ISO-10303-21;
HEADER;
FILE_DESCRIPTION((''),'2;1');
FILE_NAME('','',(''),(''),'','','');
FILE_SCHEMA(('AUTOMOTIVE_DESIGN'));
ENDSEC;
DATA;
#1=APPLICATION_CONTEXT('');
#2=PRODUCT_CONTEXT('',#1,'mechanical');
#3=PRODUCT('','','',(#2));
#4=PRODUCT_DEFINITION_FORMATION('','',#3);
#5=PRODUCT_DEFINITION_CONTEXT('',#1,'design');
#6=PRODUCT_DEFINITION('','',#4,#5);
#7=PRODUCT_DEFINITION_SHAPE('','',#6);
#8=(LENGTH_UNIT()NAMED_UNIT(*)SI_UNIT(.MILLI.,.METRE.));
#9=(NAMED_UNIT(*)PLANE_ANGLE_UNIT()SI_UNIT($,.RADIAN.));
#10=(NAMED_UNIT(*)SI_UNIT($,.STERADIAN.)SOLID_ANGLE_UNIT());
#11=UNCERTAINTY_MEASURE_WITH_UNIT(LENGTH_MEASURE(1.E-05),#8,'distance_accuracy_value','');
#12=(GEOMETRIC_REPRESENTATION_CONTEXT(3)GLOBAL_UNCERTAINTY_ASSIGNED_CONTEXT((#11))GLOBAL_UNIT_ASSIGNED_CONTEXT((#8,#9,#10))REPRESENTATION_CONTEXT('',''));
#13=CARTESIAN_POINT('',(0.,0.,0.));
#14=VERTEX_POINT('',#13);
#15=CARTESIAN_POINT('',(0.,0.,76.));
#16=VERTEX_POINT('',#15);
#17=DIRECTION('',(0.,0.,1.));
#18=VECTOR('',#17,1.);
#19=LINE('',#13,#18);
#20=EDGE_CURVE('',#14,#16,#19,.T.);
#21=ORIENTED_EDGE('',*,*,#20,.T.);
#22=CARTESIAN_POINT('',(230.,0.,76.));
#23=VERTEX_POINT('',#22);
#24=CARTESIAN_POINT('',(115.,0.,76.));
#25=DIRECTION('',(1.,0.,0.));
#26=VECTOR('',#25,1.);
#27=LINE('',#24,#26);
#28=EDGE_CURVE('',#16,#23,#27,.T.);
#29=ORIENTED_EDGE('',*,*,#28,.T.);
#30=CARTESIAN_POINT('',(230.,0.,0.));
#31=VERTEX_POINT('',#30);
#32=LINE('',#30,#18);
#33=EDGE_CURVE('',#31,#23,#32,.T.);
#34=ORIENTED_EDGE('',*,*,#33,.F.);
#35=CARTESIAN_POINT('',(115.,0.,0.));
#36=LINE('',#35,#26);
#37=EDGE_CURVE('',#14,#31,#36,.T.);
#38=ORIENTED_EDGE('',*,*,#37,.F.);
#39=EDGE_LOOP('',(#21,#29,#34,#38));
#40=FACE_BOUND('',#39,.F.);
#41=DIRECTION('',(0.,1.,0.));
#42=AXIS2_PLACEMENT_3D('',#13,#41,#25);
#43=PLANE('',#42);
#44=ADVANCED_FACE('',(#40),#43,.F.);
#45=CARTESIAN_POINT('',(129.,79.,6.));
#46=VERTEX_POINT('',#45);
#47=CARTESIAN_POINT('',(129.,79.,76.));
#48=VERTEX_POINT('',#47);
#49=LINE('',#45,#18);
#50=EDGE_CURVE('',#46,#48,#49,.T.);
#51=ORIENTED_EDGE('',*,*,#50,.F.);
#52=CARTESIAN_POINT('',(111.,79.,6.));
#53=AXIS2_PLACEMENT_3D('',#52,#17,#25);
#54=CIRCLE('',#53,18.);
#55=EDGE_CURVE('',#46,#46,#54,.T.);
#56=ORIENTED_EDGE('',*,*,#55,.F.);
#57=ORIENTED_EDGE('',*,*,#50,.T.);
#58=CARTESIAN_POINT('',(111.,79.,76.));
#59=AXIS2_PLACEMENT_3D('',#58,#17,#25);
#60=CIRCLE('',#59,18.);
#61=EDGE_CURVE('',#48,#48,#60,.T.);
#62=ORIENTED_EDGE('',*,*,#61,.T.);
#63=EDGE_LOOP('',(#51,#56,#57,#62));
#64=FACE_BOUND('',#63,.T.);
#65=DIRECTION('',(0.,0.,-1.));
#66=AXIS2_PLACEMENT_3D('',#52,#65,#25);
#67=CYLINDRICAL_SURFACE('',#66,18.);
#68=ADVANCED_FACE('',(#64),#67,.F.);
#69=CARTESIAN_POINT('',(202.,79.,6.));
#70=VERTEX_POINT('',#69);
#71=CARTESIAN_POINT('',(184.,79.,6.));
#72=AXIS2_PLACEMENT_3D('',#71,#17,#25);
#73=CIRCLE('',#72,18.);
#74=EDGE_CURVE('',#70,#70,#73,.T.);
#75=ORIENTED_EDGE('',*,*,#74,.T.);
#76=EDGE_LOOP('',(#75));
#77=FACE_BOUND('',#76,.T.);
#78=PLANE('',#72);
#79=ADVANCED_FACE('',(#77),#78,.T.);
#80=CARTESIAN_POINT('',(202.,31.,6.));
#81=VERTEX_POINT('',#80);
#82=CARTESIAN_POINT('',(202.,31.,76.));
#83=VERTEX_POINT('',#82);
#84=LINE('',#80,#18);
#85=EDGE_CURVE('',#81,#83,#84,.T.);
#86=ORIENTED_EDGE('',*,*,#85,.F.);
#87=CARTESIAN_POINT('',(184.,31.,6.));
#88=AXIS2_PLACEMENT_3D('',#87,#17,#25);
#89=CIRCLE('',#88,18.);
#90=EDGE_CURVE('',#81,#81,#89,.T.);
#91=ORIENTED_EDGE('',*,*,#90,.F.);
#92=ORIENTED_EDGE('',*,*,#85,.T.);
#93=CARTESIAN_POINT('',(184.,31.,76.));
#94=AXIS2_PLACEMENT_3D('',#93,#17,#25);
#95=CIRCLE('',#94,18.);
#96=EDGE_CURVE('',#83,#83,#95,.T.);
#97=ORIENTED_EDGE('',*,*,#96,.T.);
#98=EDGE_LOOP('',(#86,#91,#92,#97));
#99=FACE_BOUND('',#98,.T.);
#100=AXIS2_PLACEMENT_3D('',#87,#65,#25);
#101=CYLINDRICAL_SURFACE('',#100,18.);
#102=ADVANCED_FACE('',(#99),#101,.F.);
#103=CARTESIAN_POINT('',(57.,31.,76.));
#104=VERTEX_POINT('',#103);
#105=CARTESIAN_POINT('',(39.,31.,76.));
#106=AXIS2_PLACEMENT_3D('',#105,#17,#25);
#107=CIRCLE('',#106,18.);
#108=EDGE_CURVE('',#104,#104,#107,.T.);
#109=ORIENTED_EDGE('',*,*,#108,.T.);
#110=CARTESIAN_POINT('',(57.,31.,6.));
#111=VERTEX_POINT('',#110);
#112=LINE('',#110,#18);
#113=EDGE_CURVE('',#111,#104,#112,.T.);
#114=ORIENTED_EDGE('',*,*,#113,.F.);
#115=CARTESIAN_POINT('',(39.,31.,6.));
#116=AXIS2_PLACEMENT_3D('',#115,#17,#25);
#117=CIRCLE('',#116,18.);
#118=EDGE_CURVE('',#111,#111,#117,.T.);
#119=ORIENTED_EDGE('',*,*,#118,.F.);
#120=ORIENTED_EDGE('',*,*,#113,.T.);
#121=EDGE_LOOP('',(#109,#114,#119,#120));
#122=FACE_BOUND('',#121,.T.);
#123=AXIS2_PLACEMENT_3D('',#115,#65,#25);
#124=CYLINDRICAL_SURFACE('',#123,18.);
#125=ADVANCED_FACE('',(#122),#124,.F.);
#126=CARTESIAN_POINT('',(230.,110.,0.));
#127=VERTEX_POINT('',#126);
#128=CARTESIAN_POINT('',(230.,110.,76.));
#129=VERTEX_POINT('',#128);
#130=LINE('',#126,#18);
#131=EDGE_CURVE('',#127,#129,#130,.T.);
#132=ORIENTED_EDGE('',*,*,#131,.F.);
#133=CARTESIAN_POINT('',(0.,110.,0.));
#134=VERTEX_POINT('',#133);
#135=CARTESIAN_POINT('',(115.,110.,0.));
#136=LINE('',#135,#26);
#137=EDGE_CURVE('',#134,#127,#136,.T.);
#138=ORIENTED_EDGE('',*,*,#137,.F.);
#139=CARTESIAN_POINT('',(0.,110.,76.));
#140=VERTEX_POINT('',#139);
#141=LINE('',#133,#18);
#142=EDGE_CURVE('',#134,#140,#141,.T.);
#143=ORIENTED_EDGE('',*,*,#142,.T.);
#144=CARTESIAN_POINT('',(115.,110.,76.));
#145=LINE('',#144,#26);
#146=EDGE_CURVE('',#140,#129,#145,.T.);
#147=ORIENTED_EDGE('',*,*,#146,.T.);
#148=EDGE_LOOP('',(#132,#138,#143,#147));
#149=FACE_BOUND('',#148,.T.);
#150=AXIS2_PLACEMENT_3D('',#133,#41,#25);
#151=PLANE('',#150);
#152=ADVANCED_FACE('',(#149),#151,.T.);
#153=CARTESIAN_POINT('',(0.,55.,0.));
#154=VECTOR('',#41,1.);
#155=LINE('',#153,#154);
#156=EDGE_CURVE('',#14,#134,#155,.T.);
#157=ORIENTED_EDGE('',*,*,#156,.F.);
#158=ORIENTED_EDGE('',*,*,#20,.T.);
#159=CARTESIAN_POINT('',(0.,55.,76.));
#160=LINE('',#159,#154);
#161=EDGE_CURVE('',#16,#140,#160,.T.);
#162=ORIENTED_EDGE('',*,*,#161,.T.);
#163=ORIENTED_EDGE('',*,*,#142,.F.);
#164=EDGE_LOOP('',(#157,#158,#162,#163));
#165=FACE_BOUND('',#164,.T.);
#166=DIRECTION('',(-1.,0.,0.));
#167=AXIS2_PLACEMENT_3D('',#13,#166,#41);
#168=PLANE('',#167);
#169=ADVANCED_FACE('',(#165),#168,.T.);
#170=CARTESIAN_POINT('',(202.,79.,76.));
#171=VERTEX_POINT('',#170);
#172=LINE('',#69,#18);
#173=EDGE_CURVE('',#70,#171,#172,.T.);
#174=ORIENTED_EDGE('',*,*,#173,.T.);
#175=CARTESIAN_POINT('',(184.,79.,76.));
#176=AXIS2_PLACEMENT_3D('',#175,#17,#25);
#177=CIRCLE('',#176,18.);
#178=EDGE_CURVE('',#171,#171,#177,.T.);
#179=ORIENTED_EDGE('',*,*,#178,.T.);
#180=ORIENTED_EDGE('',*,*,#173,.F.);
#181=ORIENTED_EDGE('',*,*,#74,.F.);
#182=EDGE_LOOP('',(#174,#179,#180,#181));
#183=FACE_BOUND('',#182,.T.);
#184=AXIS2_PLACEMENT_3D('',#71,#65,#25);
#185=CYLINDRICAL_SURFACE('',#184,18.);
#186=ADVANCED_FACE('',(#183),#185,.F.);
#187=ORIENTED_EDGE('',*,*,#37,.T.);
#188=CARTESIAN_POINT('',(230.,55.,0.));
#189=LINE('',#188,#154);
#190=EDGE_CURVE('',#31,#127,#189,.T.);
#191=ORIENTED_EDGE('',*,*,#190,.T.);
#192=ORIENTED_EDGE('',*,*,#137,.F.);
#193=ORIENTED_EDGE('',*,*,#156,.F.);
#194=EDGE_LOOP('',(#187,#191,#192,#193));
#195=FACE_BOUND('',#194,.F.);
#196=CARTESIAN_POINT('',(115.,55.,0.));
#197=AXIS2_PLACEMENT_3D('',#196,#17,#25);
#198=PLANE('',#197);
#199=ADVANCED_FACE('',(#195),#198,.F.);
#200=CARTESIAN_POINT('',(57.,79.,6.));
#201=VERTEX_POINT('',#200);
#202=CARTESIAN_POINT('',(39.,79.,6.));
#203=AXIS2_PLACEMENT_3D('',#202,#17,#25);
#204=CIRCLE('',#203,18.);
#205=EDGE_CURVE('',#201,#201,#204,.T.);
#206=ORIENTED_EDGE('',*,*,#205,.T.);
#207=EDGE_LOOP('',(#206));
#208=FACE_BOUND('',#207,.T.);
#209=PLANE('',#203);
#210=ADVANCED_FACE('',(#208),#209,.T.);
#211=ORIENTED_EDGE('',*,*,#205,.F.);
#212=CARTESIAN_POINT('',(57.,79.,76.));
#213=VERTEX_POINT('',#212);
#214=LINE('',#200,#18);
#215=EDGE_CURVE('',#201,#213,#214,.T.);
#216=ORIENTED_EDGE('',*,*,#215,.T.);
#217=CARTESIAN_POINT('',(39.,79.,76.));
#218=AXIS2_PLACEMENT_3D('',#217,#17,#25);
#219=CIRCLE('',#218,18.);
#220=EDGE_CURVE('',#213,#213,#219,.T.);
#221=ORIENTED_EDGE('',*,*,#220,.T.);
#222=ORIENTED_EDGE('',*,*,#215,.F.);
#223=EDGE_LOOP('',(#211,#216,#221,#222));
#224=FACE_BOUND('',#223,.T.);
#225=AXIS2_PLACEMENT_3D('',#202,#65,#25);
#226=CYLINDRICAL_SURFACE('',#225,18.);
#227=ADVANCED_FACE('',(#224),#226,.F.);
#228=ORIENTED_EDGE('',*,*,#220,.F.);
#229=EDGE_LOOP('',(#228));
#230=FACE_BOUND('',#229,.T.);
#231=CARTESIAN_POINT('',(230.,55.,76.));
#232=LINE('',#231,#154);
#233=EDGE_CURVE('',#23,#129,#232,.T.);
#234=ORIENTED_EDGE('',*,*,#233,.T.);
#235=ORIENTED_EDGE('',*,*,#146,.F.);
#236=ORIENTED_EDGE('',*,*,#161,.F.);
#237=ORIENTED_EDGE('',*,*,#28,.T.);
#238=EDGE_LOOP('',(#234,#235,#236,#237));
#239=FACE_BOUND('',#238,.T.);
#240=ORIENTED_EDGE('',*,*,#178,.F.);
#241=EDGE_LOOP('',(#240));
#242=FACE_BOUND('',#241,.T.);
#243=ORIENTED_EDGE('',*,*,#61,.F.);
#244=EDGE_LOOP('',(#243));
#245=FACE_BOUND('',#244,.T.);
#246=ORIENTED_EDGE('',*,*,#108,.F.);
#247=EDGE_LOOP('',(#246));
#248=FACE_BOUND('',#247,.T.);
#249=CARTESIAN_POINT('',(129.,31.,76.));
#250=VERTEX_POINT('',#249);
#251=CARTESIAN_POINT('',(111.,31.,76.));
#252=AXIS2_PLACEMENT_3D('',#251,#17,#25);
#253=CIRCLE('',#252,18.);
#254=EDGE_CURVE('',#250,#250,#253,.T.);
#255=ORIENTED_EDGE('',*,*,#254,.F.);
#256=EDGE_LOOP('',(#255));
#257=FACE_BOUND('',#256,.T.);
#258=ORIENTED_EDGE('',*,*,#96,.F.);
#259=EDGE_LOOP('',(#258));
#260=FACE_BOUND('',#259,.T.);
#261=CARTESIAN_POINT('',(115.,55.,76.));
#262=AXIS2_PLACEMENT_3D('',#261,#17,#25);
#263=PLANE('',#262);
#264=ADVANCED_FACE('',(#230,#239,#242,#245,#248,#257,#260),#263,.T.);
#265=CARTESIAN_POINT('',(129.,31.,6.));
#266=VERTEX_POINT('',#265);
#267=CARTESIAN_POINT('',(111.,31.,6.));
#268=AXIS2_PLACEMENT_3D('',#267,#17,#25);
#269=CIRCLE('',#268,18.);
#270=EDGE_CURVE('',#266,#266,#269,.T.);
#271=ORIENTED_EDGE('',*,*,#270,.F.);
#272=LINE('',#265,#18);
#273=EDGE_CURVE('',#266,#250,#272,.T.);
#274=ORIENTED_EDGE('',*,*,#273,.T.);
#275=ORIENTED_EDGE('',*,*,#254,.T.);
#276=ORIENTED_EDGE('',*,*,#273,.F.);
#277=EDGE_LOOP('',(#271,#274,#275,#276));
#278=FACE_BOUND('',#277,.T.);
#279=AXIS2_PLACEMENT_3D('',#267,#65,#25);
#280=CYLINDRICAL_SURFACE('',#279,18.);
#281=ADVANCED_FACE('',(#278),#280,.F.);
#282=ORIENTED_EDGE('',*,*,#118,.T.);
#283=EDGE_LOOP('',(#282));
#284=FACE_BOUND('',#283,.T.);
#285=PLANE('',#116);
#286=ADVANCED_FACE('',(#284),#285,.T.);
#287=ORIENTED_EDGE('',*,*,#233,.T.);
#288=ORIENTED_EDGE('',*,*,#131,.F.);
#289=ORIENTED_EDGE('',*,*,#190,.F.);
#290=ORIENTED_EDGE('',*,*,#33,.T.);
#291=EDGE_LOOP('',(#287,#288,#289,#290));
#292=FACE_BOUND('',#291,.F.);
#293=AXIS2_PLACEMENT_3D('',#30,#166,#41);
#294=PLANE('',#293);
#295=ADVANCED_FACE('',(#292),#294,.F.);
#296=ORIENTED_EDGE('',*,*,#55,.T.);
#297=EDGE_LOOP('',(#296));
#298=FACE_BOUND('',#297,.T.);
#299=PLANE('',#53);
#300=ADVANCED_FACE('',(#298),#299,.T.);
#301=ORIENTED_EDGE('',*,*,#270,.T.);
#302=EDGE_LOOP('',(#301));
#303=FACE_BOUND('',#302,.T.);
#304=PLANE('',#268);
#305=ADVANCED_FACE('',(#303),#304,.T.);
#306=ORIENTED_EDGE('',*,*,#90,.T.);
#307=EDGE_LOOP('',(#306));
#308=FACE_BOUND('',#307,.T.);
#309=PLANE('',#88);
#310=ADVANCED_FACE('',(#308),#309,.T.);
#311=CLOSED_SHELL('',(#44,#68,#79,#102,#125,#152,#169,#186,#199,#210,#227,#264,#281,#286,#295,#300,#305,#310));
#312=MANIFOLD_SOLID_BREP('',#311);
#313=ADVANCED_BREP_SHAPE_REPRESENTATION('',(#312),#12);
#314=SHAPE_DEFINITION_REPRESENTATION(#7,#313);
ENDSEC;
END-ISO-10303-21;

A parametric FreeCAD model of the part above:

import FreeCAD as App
import Part
import Sketcher

doc = App.newDocument("Part")
body = doc.addObject("PartDesign::Body", "Body")

sketch1 = body.newObject("Sketcher::SketchObject", "Sketch")
sketch1.AttachmentSupport = (doc.getObject("XY_Plane"), [""])
sketch1.MapMode = "FlatFace"
sketch1.AttachmentOffset = App.Placement(App.Vector(0, 0, 6), App.Rotation())
sketch1.addGeometry(Part.Circle(App.Vector(39, 79, 0), App.Vector(0, 0, 1), 18), False)
sketch1.addConstraint([
    Sketcher.Constraint("Diameter", 0, 36.0),
    Sketcher.Constraint("DistanceX", -1, 1, 0, 3, 39.0),
    Sketcher.Constraint("DistanceY", -1, 1, 0, 3, 79.0),
])
pad1 = body.newObject("PartDesign::Pad", "Pad")
pad1.Profile = sketch1
pad1.Length = 70
body2 = doc.addObject("PartDesign::Body", "Body001")
body2.AllowCompound = True

sketch2 = body2.newObject("Sketcher::SketchObject", "Sketch001")
sketch2.AttachmentSupport = (doc.getObject("XY_Plane001"), [""])
sketch2.MapMode = "FlatFace"
sketch2.AttachmentOffset = App.Placement(App.Vector(0, 0, 6), App.Rotation())
sketch2.addGeometry(Part.Circle(App.Vector(39, 31, 0), App.Vector(0, 0, 1), 18), False)
sketch2.addConstraint([
    Sketcher.Constraint("Diameter", 0, 36.0),
    Sketcher.Constraint("DistanceX", -1, 1, 0, 3, 39.0),
    Sketcher.Constraint("DistanceY", -1, 1, 0, 3, 31.0),
])
pad2 = body2.newObject("PartDesign::Pad", "Pad001")
pad2.Profile = sketch2
pad2.Length = 70
doc.recompute()

boolean = body2.newObject("PartDesign::Boolean", "Boolean")
boolean.Type = "Fuse"
boolean.addObjects([body])
body3 = doc.addObject("PartDesign::Body", "Body002")

sketch3 = body3.newObject("Sketcher::SketchObject", "Sketch002")
sketch3.AttachmentSupport = (doc.getObject("XY_Plane002"), [""])
sketch3.MapMode = "FlatFace"
sketch3.AttachmentOffset = App.Placement(App.Vector(0, 0, 6), App.Rotation())
sketch3.addGeometry(Part.Circle(App.Vector(39, 79, 0), App.Vector(0, 0, 1), 18), False)
sketch3.addConstraint([
    Sketcher.Constraint("Diameter", 0, 36.0),
    Sketcher.Constraint("DistanceX", -1, 1, 0, 3, 39.0),
    Sketcher.Constraint("DistanceY", -1, 1, 0, 3, 79.0),
])
pad3 = body3.newObject("PartDesign::Pad", "Pad002")
pad3.Profile = sketch3
pad3.Length = 70
body4 = doc.addObject("PartDesign::Body", "Body003")
body4.AllowCompound = True

sketch4 = body4.newObject("Sketcher::SketchObject", "Sketch003")
sketch4.AttachmentSupport = (doc.getObject("XY_Plane003"), [""])
sketch4.MapMode = "FlatFace"
sketch4.AttachmentOffset = App.Placement(App.Vector(0, 0, 6), App.Rotation())
sketch4.addGeometry(Part.Circle(App.Vector(39, 31, 0), App.Vector(0, 0, 1), 18), False)
sketch4.addConstraint([
    Sketcher.Constraint("Diameter", 0, 36.0),
    Sketcher.Constraint("DistanceX", -1, 1, 0, 3, 39.0),
    Sketcher.Constraint("DistanceY", -1, 1, 0, 3, 31.0),
])
pad4 = body4.newObject("PartDesign::Pad", "Pad003")
pad4.Profile = sketch4
pad4.Length = 70
doc.recompute()

boolean2 = body4.newObject("PartDesign::Boolean", "Boolean001")
boolean2.Type = "Fuse"
boolean2.addObjects([body3])
body5 = doc.addObject("PartDesign::Body", "Body004")
body5.AllowCompound = True
doc.recompute()

body4.Placement = App.Placement(App.Vector(145, 0, 0), App.Rotation(App.Vector(0, 0, 1), 0))
boolean3 = body5.newObject("PartDesign::Boolean", "Boolean002")
boolean3.Type = "Fuse"
boolean3.addObjects([body4])
body6 = doc.addObject("PartDesign::Body", "Body005")

sketch5 = body6.newObject("Sketcher::SketchObject", "Sketch004")
sketch5.AttachmentSupport = (doc.getObject("XY_Plane005"), [""])
sketch5.MapMode = "FlatFace"
sketch5.AttachmentOffset = App.Placement(App.Vector(0, 0, 6), App.Rotation())
sketch5.addGeometry(Part.Circle(App.Vector(39, 79, 0), App.Vector(0, 0, 1), 18), False)
sketch5.addConstraint([
    Sketcher.Constraint("Diameter", 0, 36.0),
    Sketcher.Constraint("DistanceX", -1, 1, 0, 3, 39.0),
    Sketcher.Constraint("DistanceY", -1, 1, 0, 3, 79.0),
])
pad5 = body6.newObject("PartDesign::Pad", "Pad004")
pad5.Profile = sketch5
pad5.Length = 70
body7 = doc.addObject("PartDesign::Body", "Body006")
body7.AllowCompound = True

sketch6 = body7.newObject("Sketcher::SketchObject", "Sketch005")
sketch6.AttachmentSupport = (doc.getObject("XY_Plane006"), [""])
sketch6.MapMode = "FlatFace"
sketch6.AttachmentOffset = App.Placement(App.Vector(0, 0, 6), App.Rotation())
sketch6.addGeometry(Part.Circle(App.Vector(39, 31, 0), App.Vector(0, 0, 1), 18), False)
sketch6.addConstraint([
    Sketcher.Constraint("Diameter", 0, 36.0),
    Sketcher.Constraint("DistanceX", -1, 1, 0, 3, 39.0),
    Sketcher.Constraint("DistanceY", -1, 1, 0, 3, 31.0),
])
pad6 = body7.newObject("PartDesign::Pad", "Pad005")
pad6.Profile = sketch6
pad6.Length = 70
doc.recompute()

boolean4 = body7.newObject("PartDesign::Boolean", "Boolean003")
boolean4.Type = "Fuse"
boolean4.addObjects([body6])
body8 = doc.addObject("PartDesign::Body", "Body007")
body8.AllowCompound = True
doc.recompute()

body7.Placement = App.Placement(App.Vector(72, 0, 0), App.Rotation(App.Vector(0, 0, 1), 0))
boolean5 = body8.newObject("PartDesign::Boolean", "Boolean004")
boolean5.Type = "Fuse"
boolean5.addObjects([body7])
doc.recompute()

boolean6 = body8.newObject("PartDesign::Boolean", "Boolean005")
boolean6.Type = "Fuse"
boolean6.addObjects([body2])
doc.recompute()

boolean7 = body8.newObject("PartDesign::Boolean", "Boolean006")
boolean7.Type = "Fuse"
boolean7.addObjects([body5])
body9 = doc.addObject("PartDesign::Body", "Body008")

sketch7 = body9.newObject("Sketcher::SketchObject", "Sketch006")
sketch7.AttachmentSupport = (doc.getObject("XY_Plane008"), [""])
sketch7.MapMode = "FlatFace"
sketch7.addGeometry([
    Part.LineSegment(App.Vector(0, 110, 0), App.Vector(0, 0, 0)),
    Part.LineSegment(App.Vector(0, 0, 0), App.Vector(230, 0, 0)),
    Part.LineSegment(App.Vector(230, 0, 0), App.Vector(230, 110, 0)),
    Part.LineSegment(App.Vector(230, 110, 0), App.Vector(0, 110, 0)),
], False)
sketch7.addConstraint([
    Sketcher.Constraint("Coincident", 0, 2, 1, 1),
    Sketcher.Constraint("Coincident", 1, 2, 2, 1),
    Sketcher.Constraint("Coincident", 2, 2, 3, 1),
    Sketcher.Constraint("Coincident", 3, 2, 0, 1),
    Sketcher.Constraint("Vertical", 0),
    Sketcher.Constraint("Horizontal", 1),
    Sketcher.Constraint("Vertical", 2),
    Sketcher.Constraint("Horizontal", 3),
    Sketcher.Constraint("Coincident", 0, 2, -1, 1),
    Sketcher.Constraint("DistanceX", 1, 1, 1, 2, 230.0),
    Sketcher.Constraint("DistanceY", 0, 2, 0, 1, 110.0),
])
pad7 = body9.newObject("PartDesign::Pad", "Pad006")
pad7.Profile = sketch7
pad7.Length = 76
doc.recompute()

boolean8 = body9.newObject("PartDesign::Boolean", "Boolean007")
boolean8.Type = "Cut"
boolean8.addObjects([body8])

doc.recompute()
